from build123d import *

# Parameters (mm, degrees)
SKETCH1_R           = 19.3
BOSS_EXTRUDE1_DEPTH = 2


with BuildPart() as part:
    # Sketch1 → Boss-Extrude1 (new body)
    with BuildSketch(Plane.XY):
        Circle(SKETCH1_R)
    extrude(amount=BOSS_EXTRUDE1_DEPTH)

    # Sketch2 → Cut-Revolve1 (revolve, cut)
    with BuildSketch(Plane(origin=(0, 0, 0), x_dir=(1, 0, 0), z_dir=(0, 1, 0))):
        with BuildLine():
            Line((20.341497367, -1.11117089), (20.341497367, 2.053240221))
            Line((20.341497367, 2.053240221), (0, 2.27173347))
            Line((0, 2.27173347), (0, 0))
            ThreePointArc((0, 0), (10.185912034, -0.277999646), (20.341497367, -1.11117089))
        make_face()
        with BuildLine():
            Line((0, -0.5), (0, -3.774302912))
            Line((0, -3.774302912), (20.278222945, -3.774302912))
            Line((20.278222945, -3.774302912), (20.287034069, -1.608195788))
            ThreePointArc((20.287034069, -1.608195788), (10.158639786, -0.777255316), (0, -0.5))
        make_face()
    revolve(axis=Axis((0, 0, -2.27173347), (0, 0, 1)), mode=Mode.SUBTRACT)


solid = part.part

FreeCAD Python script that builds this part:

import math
import FreeCAD as App
import Part
import Sketcher
from FreeCAD import Vector

doc = App.newDocument("Part")
params = doc.addObject("Spreadsheet::Sheet", "Params")
for row, (alias, value) in enumerate([
    ("sketch1_diameter", "38.6 mm"),
    ("pad1_length", "2 mm"),
    ("groove_angle", "360 deg"),
], start=1):
    params.set(f"A{row}", alias)
    params.set(f"B{row}", "=" + value)
    params.setAlias(f"B{row}", alias)

body = doc.addObject("PartDesign::Body", "Body")

sketch1 = body.newObject("Sketcher::SketchObject", "Sketch")
sketch1.AttachmentSupport = (doc.getObject("XY_Plane"), [""])
sketch1.MapMode = "FlatFace"
sketch1.addGeometry(Part.Circle(Vector(0, 0, 0), Vector(0, 0, 1), 19), False)
sketch1.addConstraint([
    Sketcher.Constraint("Coincident", 0, 3, -1, 1),
    Sketcher.Constraint("Diameter", 0, 38.6),
])
sketch1.setExpression("Constraints[1]", "Params.sketch1_diameter")
pad1 = body.newObject("PartDesign::Pad", "Pad")
pad1.Profile = sketch1
pad1.setExpression("Length", "Params.pad1_length")

sketch2 = body.newObject("Sketcher::SketchObject", "Sketch001")
sketch2.AttachmentSupport = (doc.getObject("XZ_Plane"), [""])
sketch2.MapMode = "FlatFace"
sketch2.addGeometry([
    Part.LineSegment(Vector(20.3, 1.1, 0), Vector(20.3, -2.1, 0)),
    Part.LineSegment(Vector(20.3, -2.1, 0), Vector(0, -2.3, 0)),
    Part.LineSegment(Vector(0, -2.3, 0), Vector(0, 0, 0)),
    Part.ArcOfCircle(Part.Circle(Vector(0, 186.7, 0), Vector(0, 0, 1), 186.7), math.radians(-90), math.radians(-83.75)),
    Part.LineSegment(Vector(0, 0.5, 0), Vector(0, 3.8, 0)),
    Part.LineSegment(Vector(0, 3.8, 0), Vector(20.3, 3.8, 0)),
    Part.LineSegment(Vector(20.3, 3.8, 0), Vector(20.3, 1.6, 0)),
    Part.ArcOfCircle(Part.Circle(Vector(0, 186.7, 0), Vector(0, 0, 1), 186.2), math.radians(-90), math.radians(-83.75)),
], False)
sketch2.addConstraint([
    Sketcher.Constraint("Coincident", 0, 2, 1, 1),
    Sketcher.Constraint("Coincident", 1, 2, 2, 1),
    Sketcher.Constraint("Coincident", 2, 2, 3, 1),
    Sketcher.Constraint("Coincident", 3, 2, 0, 1),
    Sketcher.Constraint("Coincident", 4, 2, 5, 1),
    Sketcher.Constraint("Coincident", 5, 2, 6, 1),
    Sketcher.Constraint("Coincident", 6, 2, 7, 2),
    Sketcher.Constraint("Coincident", 7, 1, 4, 1),
    Sketcher.Constraint("Vertical", 0),
    Sketcher.Constraint("Vertical", 2),
    Sketcher.Constraint("Vertical", 4),
    Sketcher.Constraint("Horizontal", 5),
    Sketcher.Constraint("Coincident", 2, 2, -1, 1),
    Sketcher.Constraint("Coincident", 7, 3, 3, 3),
    Sketcher.Constraint("PointOnObject", 3, 3, -2),
    Sketcher.Constraint("PointOnObject", 4, 2, -2),
    Sketcher.Constraint("Radius", 3, 186.745),
    Sketcher.Constraint("Radius", 7, 186.245),
    Sketcher.Constraint("DistanceY", 0, 2, 0, 1, 3.164411),
    Sketcher.Constraint("Distance", 1, 20.342671),
    Sketcher.Constraint("DistanceX", 5, 1, 5, 2, 20.278223),
    Sketcher.Constraint("DistanceY", 2, 1, 2, 2, 2.271733),
    Sketcher.Constraint("DistanceY", 4, 1, 4, 2, 3.274303),
    Sketcher.Constraint("DistanceX", 5, 2, 6, 2, 0.008811),
])
groove = body.newObject("PartDesign::Groove", "Groove")
groove.Profile = sketch2
groove.ReferenceAxis = (sketch2, ["V_Axis"])
groove.setExpression("Angle", "Params.groove_angle")

doc.recompute()
